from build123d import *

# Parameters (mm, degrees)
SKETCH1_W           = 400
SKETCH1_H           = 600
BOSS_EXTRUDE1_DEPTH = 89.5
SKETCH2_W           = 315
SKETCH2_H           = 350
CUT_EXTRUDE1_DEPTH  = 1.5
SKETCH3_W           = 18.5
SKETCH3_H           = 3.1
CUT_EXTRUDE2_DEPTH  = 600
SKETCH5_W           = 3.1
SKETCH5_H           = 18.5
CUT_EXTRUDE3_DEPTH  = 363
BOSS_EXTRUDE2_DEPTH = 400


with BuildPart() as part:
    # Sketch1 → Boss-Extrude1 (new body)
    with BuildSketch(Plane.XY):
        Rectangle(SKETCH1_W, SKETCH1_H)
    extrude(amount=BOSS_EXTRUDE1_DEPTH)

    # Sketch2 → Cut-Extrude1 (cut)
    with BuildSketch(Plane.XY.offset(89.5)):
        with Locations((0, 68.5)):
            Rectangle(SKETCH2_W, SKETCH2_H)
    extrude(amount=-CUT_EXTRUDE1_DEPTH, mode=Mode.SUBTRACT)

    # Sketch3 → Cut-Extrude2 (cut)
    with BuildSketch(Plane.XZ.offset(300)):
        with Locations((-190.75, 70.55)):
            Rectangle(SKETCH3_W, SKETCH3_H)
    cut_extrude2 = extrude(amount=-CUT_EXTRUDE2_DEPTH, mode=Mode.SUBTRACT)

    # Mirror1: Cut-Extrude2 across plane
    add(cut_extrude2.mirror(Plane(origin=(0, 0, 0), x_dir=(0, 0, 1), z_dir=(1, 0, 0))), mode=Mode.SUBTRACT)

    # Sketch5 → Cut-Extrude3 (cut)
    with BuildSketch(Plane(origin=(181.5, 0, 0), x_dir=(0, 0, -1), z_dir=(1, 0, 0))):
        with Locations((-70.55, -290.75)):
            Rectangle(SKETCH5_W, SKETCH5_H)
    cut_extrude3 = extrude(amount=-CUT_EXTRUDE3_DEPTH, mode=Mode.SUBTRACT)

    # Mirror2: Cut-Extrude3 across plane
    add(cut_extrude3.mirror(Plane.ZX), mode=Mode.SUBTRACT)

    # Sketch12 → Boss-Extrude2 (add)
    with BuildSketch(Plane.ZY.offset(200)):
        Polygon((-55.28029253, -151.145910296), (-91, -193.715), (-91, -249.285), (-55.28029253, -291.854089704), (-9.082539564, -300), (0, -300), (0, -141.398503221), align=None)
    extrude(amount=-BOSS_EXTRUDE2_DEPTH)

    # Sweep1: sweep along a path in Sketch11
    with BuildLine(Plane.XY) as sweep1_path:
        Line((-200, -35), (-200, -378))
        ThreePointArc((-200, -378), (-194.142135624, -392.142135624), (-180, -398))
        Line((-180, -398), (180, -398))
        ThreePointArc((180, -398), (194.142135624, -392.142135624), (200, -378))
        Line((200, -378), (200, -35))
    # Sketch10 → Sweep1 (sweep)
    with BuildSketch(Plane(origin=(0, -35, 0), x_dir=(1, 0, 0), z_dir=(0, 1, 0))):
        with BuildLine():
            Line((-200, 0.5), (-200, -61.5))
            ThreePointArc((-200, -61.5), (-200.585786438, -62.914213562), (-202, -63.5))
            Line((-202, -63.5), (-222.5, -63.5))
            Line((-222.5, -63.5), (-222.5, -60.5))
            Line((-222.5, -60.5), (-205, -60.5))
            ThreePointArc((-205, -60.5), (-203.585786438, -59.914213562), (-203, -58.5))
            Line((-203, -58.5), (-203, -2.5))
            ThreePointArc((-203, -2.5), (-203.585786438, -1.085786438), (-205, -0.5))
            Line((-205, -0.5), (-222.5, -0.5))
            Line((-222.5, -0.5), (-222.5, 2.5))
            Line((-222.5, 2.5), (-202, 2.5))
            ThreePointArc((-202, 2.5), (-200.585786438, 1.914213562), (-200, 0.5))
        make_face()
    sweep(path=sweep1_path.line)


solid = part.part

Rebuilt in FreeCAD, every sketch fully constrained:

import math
import FreeCAD as App
import Part
import Sketcher
from FreeCAD import Vector
Q = App.Units.Quantity


def add_polygon(sketch, points):
    """Adds a closed chain of lines whose ends are joined by coincident constraints."""
    first, n = sketch.GeometryCount, len(points)
    for a, b in zip(points, points[1:] + points[:1]):
        sketch.addGeometry(Part.LineSegment(App.Vector(*a, 0), App.Vector(*b, 0)), False)
    for i in range(n):
        sketch.addConstraint(Sketcher.Constraint("Coincident", first + i, 2, first + (i + 1) % n, 1))

doc = App.newDocument("Part")
params = doc.addObject("Spreadsheet::Sheet", "Params")
for row, (alias, value) in enumerate([
    ("sketch1_width", "400 mm"),
    ("sketch1_height", "600 mm"),
    ("pad1_length", "89.5 mm"),
    ("sketch2_width", "315 mm"),
    ("sketch2_height", "350 mm"),
    ("pocket1_length", "1.5 mm"),
    ("sketch3_width", "18.5 mm"),
    ("sketch3_height", "3.1 mm"),
    ("pocket2_length", "600 mm"),
    ("sketch4_width", "18.5 mm"),
    ("sketch4_height", "3.1 mm"),
    ("pocket3_length", "363 mm"),
    ("sketch5_width", "55.57 mm"),
    ("sketch5_length", "55.57 mm"),
    ("pad2_length", "400 mm"),
    ("sketch6_radius", "2 mm"),
    ("sketch6_height", "62 mm"),
    ("sketch6_height2", "3 mm"),
    ("sketch6_width", "20.5 mm"),
    ("sketch6_width2", "17.5 mm"),
    ("sketch7_radius", "20 mm"),
    ("sketch7_width", "360 mm"),
    ("sketch7_height", "343 mm"),
], start=1):
    params.set(f"A{row}", alias)
    params.set(f"B{row}", "=" + value)
    params.setAlias(f"B{row}", alias)

body = doc.addObject("PartDesign::Body", "Body")

# Sketch on XY plane
sketch1 = body.newObject("Sketcher::SketchObject", "Sketch")
sketch1.AttachmentSupport = (doc.getObject("XY_Plane"), [""])
sketch1.MapMode = "FlatFace"
add_polygon(sketch1, [(-200, 300), (-200, -300), (200, -300), (200, 300)])  # lines 0-3
sketch1.addConstraint(Sketcher.Constraint("Vertical", 0))
sketch1.addConstraint(Sketcher.Constraint("Horizontal", 1))
sketch1.addConstraint(Sketcher.Constraint("Vertical", 2))
sketch1.addConstraint(Sketcher.Constraint("Horizontal", 3))
sketch1.addConstraint(Sketcher.Constraint("Symmetric", 0, 2, 2, 2, -1, 1))
sketch1.addConstraint(Sketcher.Constraint("DistanceX", 1, 1, 1, 2, 400.0))
sketch1.addConstraint(Sketcher.Constraint("DistanceY", 0, 2, 0, 1, 600.0))
sketch1.setExpression("Constraints[9]", "Params.sketch1_width")
sketch1.setExpression("Constraints[10]", "Params.sketch1_height")
pad1 = body.newObject("PartDesign::Pad", "Pad")
pad1.Profile = sketch1
pad1.setExpression("Length", "Params.pad1_length")

# Sketch on XY plane
sketch2 = body.newObject("Sketcher::SketchObject", "Sketch001")
sketch2.AttachmentSupport = (doc.getObject("XY_Plane"), [""])
sketch2.MapMode = "FlatFace"
sketch2.AttachmentOffset = App.Placement(Vector(0, 0, 89.5), App.Rotation())
add_polygon(sketch2, [(-158, 244), (-158, -106), (158, -106), (158, 244)])  # lines 0-3
sketch2.addConstraint(Sketcher.Constraint("Vertical", 0))
sketch2.addConstraint(Sketcher.Constraint("Horizontal", 1))
sketch2.addConstraint(Sketcher.Constraint("Vertical", 2))
sketch2.addConstraint(Sketcher.Constraint("Horizontal", 3))
sketch2.addConstraint(Sketcher.Constraint("DistanceX", 1, 1, 1, 2, 315.0))
sketch2.addConstraint(Sketcher.Constraint("DistanceY", 0, 2, 0, 1, 350.0))
sketch2.addConstraint(Sketcher.Constraint("DistanceX", 0, 2, -1, 1, 157.5))
sketch2.addConstraint(Sketcher.Constraint("DistanceY", 0, 2, -1, 1, 106.5))
sketch2.setExpression("Constraints[8]", "Params.sketch2_width")
sketch2.setExpression("Constraints[9]", "Params.sketch2_height")
pocket1 = body.newObject("PartDesign::Pocket", "Pocket")
pocket1.Profile = sketch2
pocket1.setExpression("Length", "Params.pocket1_length")

# Sketch on XZ plane
sketch3 = body.newObject("Sketcher::SketchObject", "Sketch002")
sketch3.AttachmentSupport = (doc.getObject("XZ_Plane"), [""])
sketch3.MapMode = "FlatFace"
sketch3.AttachmentOffset = App.Placement(Vector(0, 0, 300), App.Rotation())
add_polygon(sketch3, [(-200, 72.1), (-200, 69), (-181.5, 69), (-181.5, 72.1)])  # lines 0-3
sketch3.addConstraint(Sketcher.Constraint("Vertical", 0))
sketch3.addConstraint(Sketcher.Constraint("Horizontal", 1))
sketch3.addConstraint(Sketcher.Constraint("Vertical", 2))
sketch3.addConstraint(Sketcher.Constraint("Horizontal", 3))
sketch3.addConstraint(Sketcher.Constraint("DistanceX", 1, 1, 1, 2, 18.5))
sketch3.addConstraint(Sketcher.Constraint("DistanceY", 0, 2, 0, 1, 3.1))
sketch3.addConstraint(Sketcher.Constraint("DistanceX", 0, 2, -1, 1, 200.0))
sketch3.addConstraint(Sketcher.Constraint("DistanceY", -1, 1, 0, 2, 69.0))
sketch3.setExpression("Constraints[8]", "Params.sketch3_width")
sketch3.setExpression("Constraints[9]", "Params.sketch3_height")
pocket2 = body.newObject("PartDesign::Pocket", "Pocket001")
pocket2.Profile = sketch3
pocket2.setExpression("Length", "Params.pocket2_length")
doc.recompute()

mirrored = body.newObject("PartDesign::Mirrored", "Mirrored")
mirrored.Originals = [pocket2]
mirrored.MirrorPlane = (doc.getObject("YZ_Plane"), [""])
body.Tip = mirrored

# Sketch on YZ plane
sketch4 = body.newObject("Sketcher::SketchObject", "Sketch003")
sketch4.AttachmentSupport = (doc.getObject("YZ_Plane"), [""])
sketch4.MapMode = "FlatFace"
sketch4.AttachmentOffset = App.Placement(Vector(0, 0, 181.5), App.Rotation())
add_polygon(sketch4, [(-281.5, 72.1), (-300, 72.1), (-300, 69), (-281.5, 69)])  # lines 0-3
sketch4.addConstraint(Sketcher.Constraint("Horizontal", 0))
sketch4.addConstraint(Sketcher.Constraint("Vertical", 1))
sketch4.addConstraint(Sketcher.Constraint("Horizontal", 2))
sketch4.addConstraint(Sketcher.Constraint("Vertical", 3))
sketch4.addConstraint(Sketcher.Constraint("DistanceX", 0, 2, 0, 1, 18.5))
sketch4.addConstraint(Sketcher.Constraint("DistanceY", 1, 2, 1, 1, 3.1))
sketch4.addConstraint(Sketcher.Constraint("DistanceX", 0, 2, -1, 1, 300.0))
sketch4.addConstraint(Sketcher.Constraint("DistanceY", -1, 1, 1, 2, 69.0))
sketch4.setExpression("Constraints[8]", "Params.sketch4_width")
sketch4.setExpression("Constraints[9]", "Params.sketch4_height")
pocket3 = body.newObject("PartDesign::Pocket", "Pocket002")
pocket3.Profile = sketch4
pocket3.setExpression("Length", "Params.pocket3_length")
doc.recompute()

mirrored2 = body.newObject("PartDesign::Mirrored", "Mirrored001")
mirrored2.Originals = [pocket3]
mirrored2.MirrorPlane = (doc.getObject("XZ_Plane"), [""])
body.Tip = mirrored2

# Sketch on YZ plane
sketch5 = body.newObject("Sketcher::SketchObject", "Sketch004")
sketch5.AttachmentSupport = (doc.getObject("YZ_Plane"), [""])
sketch5.MapMode = "FlatFace"
sketch5.AttachmentOffset = App.Placement(Vector(0, 0, -200), App.Rotation())
add_polygon(sketch5, [(-151, -55), (-194, -91), (-249, -91), (-292, -55), (-300, -9), (-300, 0), (-141, 0)])  # lines 0-6
sketch5.addConstraint(Sketcher.Constraint("Horizontal", 1))
sketch5.addConstraint(Sketcher.Constraint("Vertical", 4))
sketch5.addConstraint(Sketcher.Constraint("Horizontal", 5))
sketch5.addConstraint(Sketcher.Constraint("PointOnObject", 4, 2, -1))
sketch5.addConstraint(Sketcher.Constraint("Horizontal", 2, 2, 6, 2))
sketch5.addConstraint(Sketcher.Constraint("Equal", 0, 2))
sketch5.addConstraint(Sketcher.Constraint("Angle", 0, Q("-140 deg")))
sketch5.addConstraint(Sketcher.Constraint("Angle", 3, Q("100 deg")))
sketch5.addConstraint(Sketcher.Constraint("Angle", 6, Q("-100 deg")))
sketch5.addConstraint(Sketcher.Constraint("DistanceY", 0, 2, -1, 1, 91.0))
sketch5.addConstraint(Sketcher.Constraint("DistanceX", 3, 2, -1, 1, 300.0))
sketch5.addConstraint(Sketcher.Constraint("DistanceX", 1, 2, 1, 1, 55.57))
sketch5.addConstraint(Sketcher.Constraint("Distance", 0, 55.57))
sketch5.addConstraint(Sketcher.Constraint("DistanceX", 0, 2, -1, 1, 193.715))
sketch5.setExpression("Constraints[18]", "Params.sketch5_width")
sketch5.setExpression("Constraints[19]", "Params.sketch5_length")
pad2 = body.newObject("PartDesign::Pad", "Pad001")
pad2.Profile = sketch5
pad2.setExpression("Length", "Params.pad2_length")

# Sketch on XZ plane
sketch6 = body.newObject("Sketcher::SketchObject", "Sketch005")
sketch6.AttachmentSupport = (doc.getObject("XZ_Plane"), [""])
sketch6.MapMode = "FlatFace"
sketch6.AttachmentOffset = App.Placement(Vector(0, 0, 35), App.Rotation())
sketch6.addGeometry(Part.LineSegment(Vector(-200, 61.5, 0), Vector(-200, -0.5, 0)), False)
sketch6.addGeometry(Part.ArcOfCircle(Part.Circle(Vector(-202, -0.5, 0), Vector(0, 0, 1), 2), math.radians(-90), math.radians(0)), False)
sketch6.addGeometry(Part.LineSegment(Vector(-202, -2.5, 0), Vector(-222.5, -2.5, 0)), False)
sketch6.addGeometry(Part.LineSegment(Vector(-222.5, -2.5, 0), Vector(-222.5, 0.5, 0)), False)
sketch6.addGeometry(Part.LineSegment(Vector(-222.5, 0.5, 0), Vector(-205, 0.5, 0)), False)
sketch6.addGeometry(Part.ArcOfCircle(Part.Circle(Vector(-205, 2.5, 0), Vector(0, 0, 1), 2), math.radians(-90), math.radians(0)), False)
sketch6.addGeometry(Part.LineSegment(Vector(-203, 2.5, 0), Vector(-203, 58.5, 0)), False)
sketch6.addGeometry(Part.ArcOfCircle(Part.Circle(Vector(-205, 58.5, 0), Vector(0, 0, 1), 2), math.radians(0), math.radians(90)), False)
sketch6.addGeometry(Part.LineSegment(Vector(-205, 60.5, 0), Vector(-222.5, 60.5, 0)), False)
sketch6.addGeometry(Part.LineSegment(Vector(-222.5, 60.5, 0), Vector(-222.5, 63.5, 0)), False)
sketch6.addGeometry(Part.LineSegment(Vector(-222.5, 63.5, 0), Vector(-202, 63.5, 0)), False)
sketch6.addGeometry(Part.ArcOfCircle(Part.Circle(Vector(-202, 61.5, 0), Vector(0, 0, 1), 2), math.radians(0), math.radians(90)), False)
sketch6.addConstraint(Sketcher.Constraint("Tangent", 0, 2, 1, 2))
sketch6.addConstraint(Sketcher.Constraint("Tangent", 1, 1, 2, 1))
sketch6.addConstraint(Sketcher.Constraint("Coincident", 2, 2, 3, 1))
sketch6.addConstraint(Sketcher.Constraint("Coincident", 3, 2, 4, 1))
sketch6.addConstraint(Sketcher.Constraint("Tangent", 4, 2, 5, 1))
sketch6.addConstraint(Sketcher.Constraint("Tangent", 5, 2, 6, 1))
sketch6.addConstraint(Sketcher.Constraint("Tangent", 6, 2, 7, 1))
sketch6.addConstraint(Sketcher.Constraint("Tangent", 7, 2, 8, 1))
sketch6.addConstraint(Sketcher.Constraint("Coincident", 8, 2, 9, 1))
sketch6.addConstraint(Sketcher.Constraint("Coincident", 9, 2, 10, 1))
sketch6.addConstraint(Sketcher.Constraint("Tangent", 10, 2, 11, 2))
sketch6.addConstraint(Sketcher.Constraint("Tangent", 11, 1, 0, 1))
sketch6.addConstraint(Sketcher.Constraint("Vertical", 0))
sketch6.addConstraint(Sketcher.Constraint("Horizontal", 2))
sketch6.addConstraint(Sketcher.Constraint("Vertical", 3))
sketch6.addConstraint(Sketcher.Constraint("Horizontal", 4))
sketch6.addConstraint(Sketcher.Constraint("Vertical", 6))
sketch6.addConstraint(Sketcher.Constraint("Horizontal", 8))
sketch6.addConstraint(Sketcher.Constraint("Vertical", 9))
sketch6.addConstraint(Sketcher.Constraint("Horizontal", 10))
sketch6.addConstraint(Sketcher.Constraint("Equal", 1, 5))
sketch6.addConstraint(Sketcher.Constraint("Equal", 5, 7))
sketch6.addConstraint(Sketcher.Constraint("Equal", 7, 11))
sketch6.addConstraint(Sketcher.Constraint("Vertical", 3, 2, 8, 2))
sketch6.addConstraint(Sketcher.Constraint("Equal", 3, 9))
sketch6.addConstraint(Sketcher.Constraint("Radius", 1, 2.0))
sketch6.addConstraint(Sketcher.Constraint("DistanceY", 0, 2, 0, 1, 62.0))
sketch6.addConstraint(Sketcher.Constraint("DistanceY", 3, 1, 3, 2, 3.0))
sketch6.addConstraint(Sketcher.Constraint("DistanceX", 2, 2, 2, 1, 20.5))
sketch6.addConstraint(Sketcher.Constraint("DistanceX", 4, 1, 4, 2, 17.5))
sketch6.addConstraint(Sketcher.Constraint("DistanceX", 1, 3, -1, 1, 202.0))
sketch6.addConstraint(Sketcher.Constraint("DistanceY", 1, 3, -1, 1, 0.5))
sketch6.setExpression("Constraints[25]", "Params.sketch6_radius")
sketch6.setExpression("Constraints[26]", "Params.sketch6_height")
sketch6.setExpression("Constraints[27]", "Params.sketch6_height2")
sketch6.setExpression("Constraints[28]", "Params.sketch6_width")
sketch6.setExpression("Constraints[29]", "Params.sketch6_width2")

# Sketch on XY plane
sketch7 = body.newObject("Sketcher::SketchObject", "Sketch006")
sketch7.AttachmentSupport = (doc.getObject("XY_Plane"), [""])
sketch7.MapMode = "FlatFace"
sketch7.addGeometry(Part.LineSegment(Vector(-200, -35, 0), Vector(-200, -378, 0)), False)
sketch7.addGeometry(Part.ArcOfCircle(Part.Circle(Vector(-180, -378, 0), Vector(0, 0, 1), 20), math.radians(180), math.radians(270)), False)
sketch7.addGeometry(Part.LineSegment(Vector(-180, -398, 0), Vector(180, -398, 0)), False)
sketch7.addGeometry(Part.ArcOfCircle(Part.Circle(Vector(180, -378, 0), Vector(0, 0, 1), 20), math.radians(-90), math.radians(0)), False)
sketch7.addGeometry(Part.LineSegment(Vector(200, -378, 0), Vector(200, -35, 0)), False)
sketch7.addConstraint(Sketcher.Constraint("Tangent", 0, 2, 1, 1))
sketch7.addConstraint(Sketcher.Constraint("Tangent", 1, 2, 2, 1))
sketch7.addConstraint(Sketcher.Constraint("Tangent", 2, 2, 3, 1))
sketch7.addConstraint(Sketcher.Constraint("Tangent", 3, 2, 4, 1))
sketch7.addConstraint(Sketcher.Constraint("Vertical", 0))
sketch7.addConstraint(Sketcher.Constraint("Horizontal", 2))
sketch7.addConstraint(Sketcher.Constraint("Vertical", 4))
sketch7.addConstraint(Sketcher.Constraint("Equal", 1, 3))
sketch7.addConstraint(Sketcher.Constraint("Symmetric", 0, 1, 4, 2, -2))
sketch7.addConstraint(Sketcher.Constraint("Radius", 1, 20.0))
sketch7.addConstraint(Sketcher.Constraint("DistanceX", 2, 1, 2, 2, 360.0))
sketch7.addConstraint(Sketcher.Constraint("DistanceY", 0, 2, 0, 1, 343.0))
sketch7.addConstraint(Sketcher.Constraint("DistanceY", 1, 3, -1, 1, 378.0))
sketch7.setExpression("Constraints[9]", "Params.sketch7_radius")
sketch7.setExpression("Constraints[10]", "Params.sketch7_width")
sketch7.setExpression("Constraints[11]", "Params.sketch7_height")
doc.recompute()

additivepipe = body.newObject("PartDesign::AdditivePipe", "AdditivePipe")
additivepipe.Profile = sketch6
additivepipe.Spine = (sketch7, ["Edge1", "Edge2", "Edge3", "Edge4", "Edge5"])

doc.recompute()
